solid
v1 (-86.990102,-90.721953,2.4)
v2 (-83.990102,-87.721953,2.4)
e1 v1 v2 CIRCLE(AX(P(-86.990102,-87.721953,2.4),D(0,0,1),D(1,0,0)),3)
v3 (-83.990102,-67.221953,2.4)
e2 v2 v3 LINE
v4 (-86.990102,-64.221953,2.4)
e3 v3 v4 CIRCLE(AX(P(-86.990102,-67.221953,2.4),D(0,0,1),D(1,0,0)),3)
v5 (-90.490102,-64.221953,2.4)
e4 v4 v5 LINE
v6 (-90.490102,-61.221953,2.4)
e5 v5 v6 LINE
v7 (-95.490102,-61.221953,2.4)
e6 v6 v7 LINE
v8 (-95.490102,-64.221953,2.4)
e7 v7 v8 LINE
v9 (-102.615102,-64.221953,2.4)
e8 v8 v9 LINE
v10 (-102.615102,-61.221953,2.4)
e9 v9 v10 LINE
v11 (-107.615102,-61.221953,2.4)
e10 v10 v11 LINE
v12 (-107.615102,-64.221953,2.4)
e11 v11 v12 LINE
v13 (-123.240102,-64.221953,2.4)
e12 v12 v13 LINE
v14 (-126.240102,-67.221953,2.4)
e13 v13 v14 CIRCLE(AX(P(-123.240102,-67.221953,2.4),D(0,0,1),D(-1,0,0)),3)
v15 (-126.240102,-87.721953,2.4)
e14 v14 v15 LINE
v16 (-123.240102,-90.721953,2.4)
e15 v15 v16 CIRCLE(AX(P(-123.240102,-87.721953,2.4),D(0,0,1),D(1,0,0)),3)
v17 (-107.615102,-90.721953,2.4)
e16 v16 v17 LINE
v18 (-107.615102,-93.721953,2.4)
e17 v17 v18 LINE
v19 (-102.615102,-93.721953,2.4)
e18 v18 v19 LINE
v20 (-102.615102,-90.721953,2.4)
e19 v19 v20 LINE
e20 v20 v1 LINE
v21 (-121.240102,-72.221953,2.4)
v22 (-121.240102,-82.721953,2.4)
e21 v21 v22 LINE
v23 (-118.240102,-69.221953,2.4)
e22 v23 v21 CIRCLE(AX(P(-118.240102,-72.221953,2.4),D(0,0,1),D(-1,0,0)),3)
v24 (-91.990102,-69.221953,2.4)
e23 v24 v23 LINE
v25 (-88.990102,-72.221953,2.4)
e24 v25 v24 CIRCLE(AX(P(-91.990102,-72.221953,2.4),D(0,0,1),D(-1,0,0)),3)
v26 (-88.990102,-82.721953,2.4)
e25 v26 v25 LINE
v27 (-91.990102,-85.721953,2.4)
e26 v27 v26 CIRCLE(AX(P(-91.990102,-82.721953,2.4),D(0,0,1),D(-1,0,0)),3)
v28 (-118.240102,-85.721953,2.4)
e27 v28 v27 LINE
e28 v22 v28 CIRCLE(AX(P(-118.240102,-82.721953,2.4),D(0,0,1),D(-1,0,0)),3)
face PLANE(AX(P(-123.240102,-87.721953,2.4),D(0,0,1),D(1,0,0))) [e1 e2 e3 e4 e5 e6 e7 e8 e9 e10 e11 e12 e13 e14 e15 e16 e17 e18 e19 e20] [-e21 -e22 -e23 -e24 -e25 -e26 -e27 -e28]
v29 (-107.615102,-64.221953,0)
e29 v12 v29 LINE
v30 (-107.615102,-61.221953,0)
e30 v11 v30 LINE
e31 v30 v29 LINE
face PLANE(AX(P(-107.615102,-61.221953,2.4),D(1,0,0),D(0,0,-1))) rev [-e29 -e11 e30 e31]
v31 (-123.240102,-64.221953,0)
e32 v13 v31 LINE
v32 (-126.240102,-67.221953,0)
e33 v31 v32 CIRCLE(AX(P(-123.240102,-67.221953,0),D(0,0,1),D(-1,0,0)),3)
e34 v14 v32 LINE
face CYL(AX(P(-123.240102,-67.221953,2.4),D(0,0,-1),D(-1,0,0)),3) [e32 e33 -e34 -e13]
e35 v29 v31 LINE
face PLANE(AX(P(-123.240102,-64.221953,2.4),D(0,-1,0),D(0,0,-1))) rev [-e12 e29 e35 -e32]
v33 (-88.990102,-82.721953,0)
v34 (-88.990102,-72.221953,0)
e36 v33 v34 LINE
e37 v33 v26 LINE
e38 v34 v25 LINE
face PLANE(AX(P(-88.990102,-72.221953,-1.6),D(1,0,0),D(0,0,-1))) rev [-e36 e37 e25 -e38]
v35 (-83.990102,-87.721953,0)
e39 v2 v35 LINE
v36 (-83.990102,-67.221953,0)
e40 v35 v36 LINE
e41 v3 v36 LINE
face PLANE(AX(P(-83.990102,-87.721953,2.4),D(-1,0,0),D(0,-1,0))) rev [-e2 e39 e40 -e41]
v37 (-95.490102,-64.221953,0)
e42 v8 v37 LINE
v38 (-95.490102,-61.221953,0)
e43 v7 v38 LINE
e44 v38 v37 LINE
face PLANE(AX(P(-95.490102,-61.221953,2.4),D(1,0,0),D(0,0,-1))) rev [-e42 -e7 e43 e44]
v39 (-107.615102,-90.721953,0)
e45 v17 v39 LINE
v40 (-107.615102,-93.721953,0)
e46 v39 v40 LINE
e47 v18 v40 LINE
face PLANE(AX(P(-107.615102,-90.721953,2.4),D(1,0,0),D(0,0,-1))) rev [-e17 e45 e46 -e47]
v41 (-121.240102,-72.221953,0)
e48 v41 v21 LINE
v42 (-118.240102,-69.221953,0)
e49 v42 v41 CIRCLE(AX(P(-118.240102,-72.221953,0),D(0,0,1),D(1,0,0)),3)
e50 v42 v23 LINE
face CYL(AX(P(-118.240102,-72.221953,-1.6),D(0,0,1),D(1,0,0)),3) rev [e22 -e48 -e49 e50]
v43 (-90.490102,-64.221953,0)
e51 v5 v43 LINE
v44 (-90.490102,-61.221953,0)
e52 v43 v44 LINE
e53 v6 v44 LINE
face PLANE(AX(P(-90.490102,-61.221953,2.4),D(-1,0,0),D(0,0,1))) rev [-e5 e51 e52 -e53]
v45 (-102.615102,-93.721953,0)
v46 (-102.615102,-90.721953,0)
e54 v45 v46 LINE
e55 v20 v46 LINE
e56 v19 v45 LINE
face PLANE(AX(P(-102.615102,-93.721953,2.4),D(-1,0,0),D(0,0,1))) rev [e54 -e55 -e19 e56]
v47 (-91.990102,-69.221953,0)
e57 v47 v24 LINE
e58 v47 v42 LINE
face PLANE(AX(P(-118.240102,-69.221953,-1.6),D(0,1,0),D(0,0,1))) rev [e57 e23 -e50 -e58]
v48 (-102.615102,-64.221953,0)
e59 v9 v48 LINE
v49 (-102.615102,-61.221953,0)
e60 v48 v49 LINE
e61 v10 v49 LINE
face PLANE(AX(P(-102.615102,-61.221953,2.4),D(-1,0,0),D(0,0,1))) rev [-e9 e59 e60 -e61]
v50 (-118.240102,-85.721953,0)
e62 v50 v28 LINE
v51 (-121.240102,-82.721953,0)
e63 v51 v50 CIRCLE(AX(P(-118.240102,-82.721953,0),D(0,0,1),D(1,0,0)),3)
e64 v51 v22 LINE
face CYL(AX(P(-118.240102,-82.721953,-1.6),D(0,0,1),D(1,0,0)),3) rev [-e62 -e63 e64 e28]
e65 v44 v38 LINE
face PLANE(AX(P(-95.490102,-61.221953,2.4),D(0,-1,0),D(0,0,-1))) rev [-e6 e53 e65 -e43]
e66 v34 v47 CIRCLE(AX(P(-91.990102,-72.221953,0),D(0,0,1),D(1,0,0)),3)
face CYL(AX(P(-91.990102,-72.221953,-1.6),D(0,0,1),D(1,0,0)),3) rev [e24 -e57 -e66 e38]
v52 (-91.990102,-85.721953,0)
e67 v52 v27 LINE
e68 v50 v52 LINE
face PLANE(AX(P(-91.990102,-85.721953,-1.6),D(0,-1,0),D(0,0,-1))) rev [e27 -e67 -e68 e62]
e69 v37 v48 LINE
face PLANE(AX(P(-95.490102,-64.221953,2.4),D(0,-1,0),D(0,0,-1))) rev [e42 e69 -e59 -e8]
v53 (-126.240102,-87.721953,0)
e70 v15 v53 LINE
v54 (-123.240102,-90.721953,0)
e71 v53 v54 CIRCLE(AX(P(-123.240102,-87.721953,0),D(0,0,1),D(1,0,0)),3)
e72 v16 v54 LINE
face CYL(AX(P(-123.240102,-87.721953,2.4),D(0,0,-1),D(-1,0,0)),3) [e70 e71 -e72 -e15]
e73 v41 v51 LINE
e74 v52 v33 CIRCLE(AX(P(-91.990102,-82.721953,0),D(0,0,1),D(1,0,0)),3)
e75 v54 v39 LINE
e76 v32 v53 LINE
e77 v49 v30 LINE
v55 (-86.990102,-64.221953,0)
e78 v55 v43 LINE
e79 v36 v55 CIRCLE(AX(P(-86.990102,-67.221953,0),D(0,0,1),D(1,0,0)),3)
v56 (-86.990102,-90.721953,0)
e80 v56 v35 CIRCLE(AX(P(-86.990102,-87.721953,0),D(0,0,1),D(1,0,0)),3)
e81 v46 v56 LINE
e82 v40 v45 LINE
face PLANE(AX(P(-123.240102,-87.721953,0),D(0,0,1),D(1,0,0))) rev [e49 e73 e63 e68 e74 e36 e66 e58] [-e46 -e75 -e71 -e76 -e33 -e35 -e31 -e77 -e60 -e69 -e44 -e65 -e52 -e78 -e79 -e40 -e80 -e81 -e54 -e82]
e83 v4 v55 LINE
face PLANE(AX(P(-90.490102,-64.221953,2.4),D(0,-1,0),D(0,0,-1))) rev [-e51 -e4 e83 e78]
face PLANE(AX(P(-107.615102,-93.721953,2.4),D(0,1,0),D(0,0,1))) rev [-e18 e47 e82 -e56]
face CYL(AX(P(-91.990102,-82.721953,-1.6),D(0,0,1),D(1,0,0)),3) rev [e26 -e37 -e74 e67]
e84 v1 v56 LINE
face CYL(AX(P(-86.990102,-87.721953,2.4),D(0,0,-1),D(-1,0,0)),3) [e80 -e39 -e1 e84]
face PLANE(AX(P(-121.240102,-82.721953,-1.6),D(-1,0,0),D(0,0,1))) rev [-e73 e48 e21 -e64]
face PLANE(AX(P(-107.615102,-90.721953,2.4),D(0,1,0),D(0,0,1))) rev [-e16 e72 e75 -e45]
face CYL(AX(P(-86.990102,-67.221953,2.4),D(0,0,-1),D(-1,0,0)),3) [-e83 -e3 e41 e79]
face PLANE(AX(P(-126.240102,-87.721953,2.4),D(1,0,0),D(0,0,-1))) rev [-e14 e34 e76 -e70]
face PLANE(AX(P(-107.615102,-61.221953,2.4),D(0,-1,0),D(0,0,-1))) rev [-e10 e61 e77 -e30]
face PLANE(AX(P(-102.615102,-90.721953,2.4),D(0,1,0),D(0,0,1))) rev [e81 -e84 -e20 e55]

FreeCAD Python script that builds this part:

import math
import FreeCAD as App
import Part
import Sketcher
Q = App.Units.Quantity

doc = App.newDocument("Part")
body = doc.addObject("PartDesign::Body", "Body")

sketch1 = body.newObject("Sketcher::SketchObject", "Sketch")
sketch1.AttachmentSupport = (doc.getObject("XY_Plane"), [""])
sketch1.MapMode = "FlatFace"
sketch1.addGeometry(Part.LineSegment(App.Vector(-102.615102, -90.721953, 0), App.Vector(-86.990102, -90.721953, 0)), False)
sketch1.addGeometry(Part.ArcOfCircle(Part.Circle(App.Vector(-86.990102, -87.721953, 0), App.Vector(0, 0, 1), 3), math.radians(-90), math.radians(0)), False)
sketch1.addGeometry(Part.LineSegment(App.Vector(-83.990102, -87.721953, 0), App.Vector(-83.990102, -67.221953, 0)), False)
sketch1.addGeometry(Part.ArcOfCircle(Part.Circle(App.Vector(-86.990102, -67.221953, 0), App.Vector(0, 0, 1), 3), math.radians(0), math.radians(90)), False)
sketch1.addGeometry(Part.LineSegment(App.Vector(-86.990102, -64.221953, 0), App.Vector(-90.490102, -64.221953, 0)), False)
sketch1.addGeometry(Part.LineSegment(App.Vector(-90.490102, -64.221953, 0), App.Vector(-90.490102, -61.221953, 0)), False)
sketch1.addGeometry(Part.LineSegment(App.Vector(-90.490102, -61.221953, 0), App.Vector(-95.490102, -61.221953, 0)), False)
sketch1.addGeometry(Part.LineSegment(App.Vector(-95.490102, -61.221953, 0), App.Vector(-95.490102, -64.221953, 0)), False)
sketch1.addGeometry(Part.LineSegment(App.Vector(-95.490102, -64.221953, 0), App.Vector(-102.615102, -64.221953, 0)), False)
sketch1.addGeometry(Part.LineSegment(App.Vector(-102.615102, -64.221953, 0), App.Vector(-102.615102, -61.221953, 0)), False)
sketch1.addGeometry(Part.LineSegment(App.Vector(-102.615102, -61.221953, 0), App.Vector(-107.615102, -61.221953, 0)), False)
sketch1.addGeometry(Part.LineSegment(App.Vector(-107.615102, -61.221953, 0), App.Vector(-107.615102, -64.221953, 0)), False)
sketch1.addGeometry(Part.LineSegment(App.Vector(-107.615102, -64.221953, 0), App.Vector(-123.240102, -64.221953, 0)), False)
sketch1.addGeometry(Part.ArcOfCircle(Part.Circle(App.Vector(-123.240102, -67.221953, 0), App.Vector(0, 0, 1), 3), math.radians(90), math.radians(180)), False)
sketch1.addGeometry(Part.LineSegment(App.Vector(-126.240102, -67.221953, 0), App.Vector(-126.240102, -87.721953, 0)), False)
sketch1.addGeometry(Part.ArcOfCircle(Part.Circle(App.Vector(-123.240102, -87.721953, 0), App.Vector(0, 0, 1), 3), math.radians(180), math.radians(270)), False)
sketch1.addGeometry(Part.LineSegment(App.Vector(-123.240102, -90.721953, 0), App.Vector(-107.615102, -90.721953, 0)), False)
sketch1.addGeometry(Part.LineSegment(App.Vector(-107.615102, -90.721953, 0), App.Vector(-107.615102, -93.721953, 0)), False)
sketch1.addGeometry(Part.LineSegment(App.Vector(-107.615102, -93.721953, 0), App.Vector(-102.615102, -93.721953, 0)), False)
sketch1.addGeometry(Part.LineSegment(App.Vector(-102.615102, -93.721953, 0), App.Vector(-102.615102, -90.721953, 0)), False)
sketch1.addConstraint(Sketcher.Constraint("Tangent", 0, 2, 1, 1))
sketch1.addConstraint(Sketcher.Constraint("Tangent", 1, 2, 2, 1))
sketch1.addConstraint(Sketcher.Constraint("Tangent", 2, 2, 3, 1))
sketch1.addConstraint(Sketcher.Constraint("Tangent", 3, 2, 4, 1))
sketch1.addConstraint(Sketcher.Constraint("Coincident", 4, 2, 5, 1))
sketch1.addConstraint(Sketcher.Constraint("Coincident", 5, 2, 6, 1))
sketch1.addConstraint(Sketcher.Constraint("Coincident", 6, 2, 7, 1))
sketch1.addConstraint(Sketcher.Constraint("Coincident", 7, 2, 8, 1))
sketch1.addConstraint(Sketcher.Constraint("Coincident", 8, 2, 9, 1))
sketch1.addConstraint(Sketcher.Constraint("Coincident", 9, 2, 10, 1))
sketch1.addConstraint(Sketcher.Constraint("Coincident", 10, 2, 11, 1))
sketch1.addConstraint(Sketcher.Constraint("Coincident", 11, 2, 12, 1))
sketch1.addConstraint(Sketcher.Constraint("Tangent", 12, 2, 13, 1))
sketch1.addConstraint(Sketcher.Constraint("Tangent", 13, 2, 14, 1))
sketch1.addConstraint(Sketcher.Constraint("Tangent", 14, 2, 15, 1))
sketch1.addConstraint(Sketcher.Constraint("Tangent", 15, 2, 16, 1))
sketch1.addConstraint(Sketcher.Constraint("Coincident", 16, 2, 17, 1))
sketch1.addConstraint(Sketcher.Constraint("Coincident", 17, 2, 18, 1))
sketch1.addConstraint(Sketcher.Constraint("Coincident", 18, 2, 19, 1))
sketch1.addConstraint(Sketcher.Constraint("Coincident", 19, 2, 0, 1))
sketch1.addConstraint(Sketcher.Constraint("Horizontal", 0))
sketch1.addConstraint(Sketcher.Constraint("Vertical", 2))
sketch1.addConstraint(Sketcher.Constraint("Horizontal", 4))
sketch1.addConstraint(Sketcher.Constraint("Vertical", 5))
sketch1.addConstraint(Sketcher.Constraint("Horizontal", 6))
sketch1.addConstraint(Sketcher.Constraint("Vertical", 7))
sketch1.addConstraint(Sketcher.Constraint("Horizontal", 8))
sketch1.addConstraint(Sketcher.Constraint("Vertical", 9))
sketch1.addConstraint(Sketcher.Constraint("Horizontal", 10))
sketch1.addConstraint(Sketcher.Constraint("Vertical", 11))
sketch1.addConstraint(Sketcher.Constraint("Horizontal", 12))
sketch1.addConstraint(Sketcher.Constraint("Vertical", 14))
sketch1.addConstraint(Sketcher.Constraint("Horizontal", 16))
sketch1.addConstraint(Sketcher.Constraint("Vertical", 17))
sketch1.addConstraint(Sketcher.Constraint("Horizontal", 18))
sketch1.addConstraint(Sketcher.Constraint("Vertical", 19))
sketch1.addConstraint(Sketcher.Constraint("Equal", 1, 3))
sketch1.addConstraint(Sketcher.Constraint("Equal", 3, 13))
sketch1.addConstraint(Sketcher.Constraint("Equal", 13, 15))
sketch1.addConstraint(Sketcher.Constraint("Horizontal", 3, 3, 13, 3))
sketch1.addConstraint(Sketcher.Constraint("Horizontal", 1, 3, 15, 3))
sketch1.addConstraint(Sketcher.Constraint("Horizontal", 4, 2, 7, 2))
sketch1.addConstraint(Sketcher.Constraint("Horizontal", 6, 2, 9, 2))
sketch1.addConstraint(Sketcher.Constraint("Vertical", 11, 2, 16, 2))
sketch1.addConstraint(Sketcher.Constraint("Vertical", 9, 2, 18, 2))
sketch1.addConstraint(Sketcher.Constraint("Equal", 6, 10))
sketch1.addConstraint(Sketcher.Constraint("Equal", 0, 12))
sketch1.addConstraint(Sketcher.Constraint("Equal", 11, 17))
sketch1.addConstraint(Sketcher.Constraint("Radius", 1, Q("3 mm")))
sketch1.addConstraint(Sketcher.Constraint("DistanceX", 6, 2, 6, 1, Q("5 mm")))
sketch1.addConstraint(Sketcher.Constraint("DistanceY", 5, 1, 5, 2, Q("3 mm")))
sketch1.addConstraint(Sketcher.Constraint("DistanceX", 4, 2, 4, 1, Q("3.5 mm")))
sketch1.addConstraint(Sketcher.Constraint("DistanceY", 2, 1, 2, 2, Q("20.5 mm")))
sketch1.addConstraint(Sketcher.Constraint("DistanceX", 0, 1, 0, 2, Q("15.625 mm")))
sketch1.addConstraint(Sketcher.Constraint("DistanceX", 1, 3, -1, 1, Q("86.990102 mm")))
sketch1.addConstraint(Sketcher.Constraint("DistanceY", 1, 3, -1, 1, Q("87.721953 mm")))
pad1 = body.newObject("PartDesign::Pad", "Pad")
pad1.Profile = sketch1
pad1.Length = 2.4

sketch2 = body.newObject("Sketcher::SketchObject", "Sketch001")
sketch2.AttachmentSupport = (doc.getObject("XY_Plane"), [""])
sketch2.MapMode = "FlatFace"
sketch2.AttachmentOffset = App.Placement(App.Vector(0, 0, 2.4), App.Rotation())
sketch2.addGeometry(Part.ArcOfCircle(Part.Circle(App.Vector(-91.990102, -72.221953, 0), App.Vector(0, 0, 1), 3), math.radians(0), math.radians(90)), False)
sketch2.addGeometry(Part.LineSegment(App.Vector(-91.990102, -69.221953, 0), App.Vector(-118.240102, -69.221953, 0)), False)
sketch2.addGeometry(Part.ArcOfCircle(Part.Circle(App.Vector(-118.240102, -72.221953, 0), App.Vector(0, 0, 1), 3), math.radians(90), math.radians(180)), False)
sketch2.addGeometry(Part.LineSegment(App.Vector(-121.240102, -72.221953, 0), App.Vector(-121.240102, -82.721953, 0)), False)
sketch2.addGeometry(Part.ArcOfCircle(Part.Circle(App.Vector(-118.240102, -82.721953, 0), App.Vector(0, 0, 1), 3), math.radians(180), math.radians(270)), False)
sketch2.addGeometry(Part.LineSegment(App.Vector(-118.240102, -85.721953, 0), App.Vector(-91.990102, -85.721953, 0)), False)
sketch2.addGeometry(Part.ArcOfCircle(Part.Circle(App.Vector(-91.990102, -82.721953, 0), App.Vector(0, 0, 1), 3), math.radians(-90), math.radians(0)), False)
sketch2.addGeometry(Part.LineSegment(App.Vector(-88.990102, -82.721953, 0), App.Vector(-88.990102, -72.221953, 0)), False)
sketch2.addConstraint(Sketcher.Constraint("Tangent", 0, 2, 1, 1))
sketch2.addConstraint(Sketcher.Constraint("Tangent", 1, 2, 2, 1))
sketch2.addConstraint(Sketcher.Constraint("Tangent", 2, 2, 3, 1))
sketch2.addConstraint(Sketcher.Constraint("Tangent", 3, 2, 4, 1))
sketch2.addConstraint(Sketcher.Constraint("Tangent", 4, 2, 5, 1))
sketch2.addConstraint(Sketcher.Constraint("Tangent", 5, 2, 6, 1))
sketch2.addConstraint(Sketcher.Constraint("Tangent", 6, 2, 7, 1))
sketch2.addConstraint(Sketcher.Constraint("Tangent", 7, 2, 0, 1))
sketch2.addConstraint(Sketcher.Constraint("Horizontal", 1))
sketch2.addConstraint(Sketcher.Constraint("Vertical", 3))
sketch2.addConstraint(Sketcher.Constraint("Horizontal", 5))
sketch2.addConstraint(Sketcher.Constraint("Vertical", 7))
sketch2.addConstraint(Sketcher.Constraint("Equal", 0, 2))
sketch2.addConstraint(Sketcher.Constraint("Equal", 2, 4))
sketch2.addConstraint(Sketcher.Constraint("Equal", 4, 6))
sketch2.addConstraint(Sketcher.Constraint("Radius", 0, Q("3 mm")))
sketch2.addConstraint(Sketcher.Constraint("DistanceY", 3, 2, 3, 1, Q("10.5 mm")))
sketch2.addConstraint(Sketcher.Constraint("DistanceX", 1, 2, 1, 1, Q("26.25 mm")))
sketch2.addConstraint(Sketcher.Constraint("DistanceX", 0, 3, -1, 1, Q("91.990102 mm")))
sketch2.addConstraint(Sketcher.Constraint("DistanceY", 0, 3, -1, 1, Q("72.221953 mm")))
pocket1 = body.newObject("PartDesign::Pocket", "Pocket")
pocket1.Profile = sketch2
pocket1.Length = 4

doc.recompute()
